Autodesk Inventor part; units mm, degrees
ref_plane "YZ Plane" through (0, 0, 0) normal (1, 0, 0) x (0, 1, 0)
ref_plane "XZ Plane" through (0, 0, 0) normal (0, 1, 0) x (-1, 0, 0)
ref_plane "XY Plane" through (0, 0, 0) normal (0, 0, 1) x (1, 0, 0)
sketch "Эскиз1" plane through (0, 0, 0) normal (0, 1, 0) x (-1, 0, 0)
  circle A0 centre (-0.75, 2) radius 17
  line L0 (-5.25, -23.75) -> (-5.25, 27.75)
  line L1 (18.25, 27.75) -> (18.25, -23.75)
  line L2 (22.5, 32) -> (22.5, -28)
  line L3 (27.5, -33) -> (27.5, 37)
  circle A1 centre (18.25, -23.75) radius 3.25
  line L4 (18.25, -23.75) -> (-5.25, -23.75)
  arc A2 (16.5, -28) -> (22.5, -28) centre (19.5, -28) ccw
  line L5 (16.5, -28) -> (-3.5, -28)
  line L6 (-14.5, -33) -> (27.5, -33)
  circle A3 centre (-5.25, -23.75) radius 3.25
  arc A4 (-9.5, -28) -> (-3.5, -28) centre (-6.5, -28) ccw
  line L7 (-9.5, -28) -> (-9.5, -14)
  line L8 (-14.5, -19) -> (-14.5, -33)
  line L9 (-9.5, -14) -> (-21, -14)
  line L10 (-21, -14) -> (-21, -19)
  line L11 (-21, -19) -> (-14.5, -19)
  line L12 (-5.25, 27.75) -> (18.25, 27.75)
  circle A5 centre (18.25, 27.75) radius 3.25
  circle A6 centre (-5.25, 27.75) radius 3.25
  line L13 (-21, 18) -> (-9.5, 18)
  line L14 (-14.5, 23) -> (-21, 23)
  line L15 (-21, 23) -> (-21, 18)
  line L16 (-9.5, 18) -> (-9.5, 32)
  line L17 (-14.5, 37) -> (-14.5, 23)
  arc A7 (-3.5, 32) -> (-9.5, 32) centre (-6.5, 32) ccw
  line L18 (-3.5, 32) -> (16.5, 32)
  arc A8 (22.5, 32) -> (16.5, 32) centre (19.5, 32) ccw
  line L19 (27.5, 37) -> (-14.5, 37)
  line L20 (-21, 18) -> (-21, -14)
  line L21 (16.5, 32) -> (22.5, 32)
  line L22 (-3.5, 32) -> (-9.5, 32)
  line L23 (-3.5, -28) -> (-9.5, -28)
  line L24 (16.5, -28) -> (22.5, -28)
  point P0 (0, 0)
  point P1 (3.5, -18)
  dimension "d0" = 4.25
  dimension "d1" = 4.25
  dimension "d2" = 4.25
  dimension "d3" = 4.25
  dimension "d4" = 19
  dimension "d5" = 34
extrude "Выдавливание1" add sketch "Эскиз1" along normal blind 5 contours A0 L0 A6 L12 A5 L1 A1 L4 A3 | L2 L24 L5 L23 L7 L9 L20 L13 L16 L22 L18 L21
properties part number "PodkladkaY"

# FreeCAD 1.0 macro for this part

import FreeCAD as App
import Part
import Sketcher
from FreeCAD import Vector
Q = App.Units.Quantity


def add_polygon(sketch, points):
    """Adds a closed chain of lines whose ends are joined by coincident constraints."""
    first, n = sketch.GeometryCount, len(points)
    for a, b in zip(points, points[1:] + points[:1]):
        sketch.addGeometry(Part.LineSegment(App.Vector(*a, 0), App.Vector(*b, 0)), False)
    for i in range(n):
        sketch.addConstraint(Sketcher.Constraint("Coincident", first + i, 2, first + (i + 1) % n, 1))

doc = App.newDocument("Part")
params = doc.addObject("Spreadsheet::Sheet", "Params")
for row, (alias, value) in enumerate([
    ("sketch1_diameter", "34 mm"),
    ("sketch1_diameter2", "6.5 mm"),
    ("sketch1_width", "32 mm"),
    ("sketch1_height", "60 mm"),
    ("sketch1_width2", "11.5 mm"),
    ("pad1_length", "5 mm"),
], start=1):
    params.set(f"A{row}", alias)
    params.set(f"B{row}", "=" + value)
    params.setAlias(f"B{row}", alias)

body = doc.addObject("PartDesign::Body", "Body")

sketch1 = body.newObject("Sketcher::SketchObject", "Sketch")
sketch1.AttachmentSupport = (doc.getObject("XZ_Plane"), [""])
sketch1.MapMode = "FlatFace"
add_polygon(sketch1, [(-22.5, -28), (-22.5, 32), (9.5, 32), (9.5, 18), (21, 18), (21, -14), (9.5, -14), (9.5, -28)])
sketch1.addGeometry(Part.Circle(Vector(0.75, 2, 0), Vector(0, 0, 1), 17), False)
sketch1.addGeometry(Part.Circle(Vector(5.25, 27.75, 0), Vector(0, 0, 1), 3.25), False)
sketch1.addGeometry(Part.Circle(Vector(-18.25, 27.75, 0), Vector(0, 0, 1), 3.25), False)
sketch1.addGeometry(Part.Circle(Vector(-18.25, -23.75, 0), Vector(0, 0, 1), 3.25), False)
sketch1.addGeometry(Part.Circle(Vector(5.25, -23.75, 0), Vector(0, 0, 1), 3.25), False)
sketch1.addConstraint(Sketcher.Constraint("Vertical", 0))
sketch1.addConstraint(Sketcher.Constraint("Horizontal", 1))
sketch1.addConstraint(Sketcher.Constraint("Vertical", 2))
sketch1.addConstraint(Sketcher.Constraint("Horizontal", 3))
sketch1.addConstraint(Sketcher.Constraint("Vertical", 4))
sketch1.addConstraint(Sketcher.Constraint("Horizontal", 5))
sketch1.addConstraint(Sketcher.Constraint("Vertical", 6))
sketch1.addConstraint(Sketcher.Constraint("Horizontal", 7))
sketch1.addConstraint(Sketcher.Constraint("Equal", 9, 10))
sketch1.addConstraint(Sketcher.Constraint("Equal", 10, 11))
sketch1.addConstraint(Sketcher.Constraint("Equal", 11, 12))
sketch1.addConstraint(Sketcher.Constraint("Horizontal", 9, 3, 10, 3))
sketch1.addConstraint(Sketcher.Constraint("Horizontal", 11, 3, 12, 3))
sketch1.addConstraint(Sketcher.Constraint("Vertical", 10, 3, 11, 3))
sketch1.addConstraint(Sketcher.Constraint("Vertical", 9, 3, 12, 3))
sketch1.addConstraint(Sketcher.Constraint("Vertical", 2, 2, 5, 2))
sketch1.addConstraint(Sketcher.Constraint("Equal", 7, 4))
sketch1.addConstraint(Sketcher.Constraint("Equal", 2, 6))
sketch1.addConstraint(Sketcher.Constraint("Diameter", 8, Q("34 mm")))
sketch1.addConstraint(Sketcher.Constraint("DistanceX", 10, 3, 8, 3, Q("19 mm")))
sketch1.addConstraint(Sketcher.Constraint("Diameter", 9, Q("6.5 mm")))
sketch1.addConstraint(Sketcher.Constraint("DistanceX", 1, 1, 1, 2, Q("32 mm")))
sketch1.addConstraint(Sketcher.Constraint("DistanceY", 0, 1, 0, 2, Q("60 mm")))
sketch1.addConstraint(Sketcher.Constraint("DistanceX", 0, 2, 10, 3, Q("4.25 mm")))
sketch1.addConstraint(Sketcher.Constraint("DistanceY", 10, 3, 0, 2, Q("4.25 mm")))
sketch1.addConstraint(Sketcher.Constraint("DistanceX", 9, 3, 1, 2, Q("4.25 mm")))
sketch1.addConstraint(Sketcher.Constraint("DistanceY", 6, 2, 12, 3, Q("4.25 mm")))
sketch1.addConstraint(Sketcher.Constraint("DistanceX", 3, 1, 3, 2, Q("11.5 mm")))
sketch1.addConstraint(Sketcher.Constraint("DistanceY", -1, 1, 8, 3, Q("2 mm")))
sketch1.addConstraint(Sketcher.Constraint("DistanceY", -1, 1, 0, 2, Q("32 mm")))
sketch1.addConstraint(Sketcher.Constraint("DistanceX", -1, 1, 3, 2, Q("21 mm")))
sketch1.setExpression("Constraints[26]", "Params.sketch1_diameter")
sketch1.setExpression("Constraints[28]", "Params.sketch1_diameter2")
sketch1.setExpression("Constraints[29]", "Params.sketch1_width")
sketch1.setExpression("Constraints[30]", "Params.sketch1_height")
sketch1.setExpression("Constraints[35]", "Params.sketch1_width2")
pad1 = body.newObject("PartDesign::Pad", "Pad")
pad1.Profile = sketch1
pad1.setExpression("Length", "Params.pad1_length")
pad1.Reversed = True

doc.recompute()
